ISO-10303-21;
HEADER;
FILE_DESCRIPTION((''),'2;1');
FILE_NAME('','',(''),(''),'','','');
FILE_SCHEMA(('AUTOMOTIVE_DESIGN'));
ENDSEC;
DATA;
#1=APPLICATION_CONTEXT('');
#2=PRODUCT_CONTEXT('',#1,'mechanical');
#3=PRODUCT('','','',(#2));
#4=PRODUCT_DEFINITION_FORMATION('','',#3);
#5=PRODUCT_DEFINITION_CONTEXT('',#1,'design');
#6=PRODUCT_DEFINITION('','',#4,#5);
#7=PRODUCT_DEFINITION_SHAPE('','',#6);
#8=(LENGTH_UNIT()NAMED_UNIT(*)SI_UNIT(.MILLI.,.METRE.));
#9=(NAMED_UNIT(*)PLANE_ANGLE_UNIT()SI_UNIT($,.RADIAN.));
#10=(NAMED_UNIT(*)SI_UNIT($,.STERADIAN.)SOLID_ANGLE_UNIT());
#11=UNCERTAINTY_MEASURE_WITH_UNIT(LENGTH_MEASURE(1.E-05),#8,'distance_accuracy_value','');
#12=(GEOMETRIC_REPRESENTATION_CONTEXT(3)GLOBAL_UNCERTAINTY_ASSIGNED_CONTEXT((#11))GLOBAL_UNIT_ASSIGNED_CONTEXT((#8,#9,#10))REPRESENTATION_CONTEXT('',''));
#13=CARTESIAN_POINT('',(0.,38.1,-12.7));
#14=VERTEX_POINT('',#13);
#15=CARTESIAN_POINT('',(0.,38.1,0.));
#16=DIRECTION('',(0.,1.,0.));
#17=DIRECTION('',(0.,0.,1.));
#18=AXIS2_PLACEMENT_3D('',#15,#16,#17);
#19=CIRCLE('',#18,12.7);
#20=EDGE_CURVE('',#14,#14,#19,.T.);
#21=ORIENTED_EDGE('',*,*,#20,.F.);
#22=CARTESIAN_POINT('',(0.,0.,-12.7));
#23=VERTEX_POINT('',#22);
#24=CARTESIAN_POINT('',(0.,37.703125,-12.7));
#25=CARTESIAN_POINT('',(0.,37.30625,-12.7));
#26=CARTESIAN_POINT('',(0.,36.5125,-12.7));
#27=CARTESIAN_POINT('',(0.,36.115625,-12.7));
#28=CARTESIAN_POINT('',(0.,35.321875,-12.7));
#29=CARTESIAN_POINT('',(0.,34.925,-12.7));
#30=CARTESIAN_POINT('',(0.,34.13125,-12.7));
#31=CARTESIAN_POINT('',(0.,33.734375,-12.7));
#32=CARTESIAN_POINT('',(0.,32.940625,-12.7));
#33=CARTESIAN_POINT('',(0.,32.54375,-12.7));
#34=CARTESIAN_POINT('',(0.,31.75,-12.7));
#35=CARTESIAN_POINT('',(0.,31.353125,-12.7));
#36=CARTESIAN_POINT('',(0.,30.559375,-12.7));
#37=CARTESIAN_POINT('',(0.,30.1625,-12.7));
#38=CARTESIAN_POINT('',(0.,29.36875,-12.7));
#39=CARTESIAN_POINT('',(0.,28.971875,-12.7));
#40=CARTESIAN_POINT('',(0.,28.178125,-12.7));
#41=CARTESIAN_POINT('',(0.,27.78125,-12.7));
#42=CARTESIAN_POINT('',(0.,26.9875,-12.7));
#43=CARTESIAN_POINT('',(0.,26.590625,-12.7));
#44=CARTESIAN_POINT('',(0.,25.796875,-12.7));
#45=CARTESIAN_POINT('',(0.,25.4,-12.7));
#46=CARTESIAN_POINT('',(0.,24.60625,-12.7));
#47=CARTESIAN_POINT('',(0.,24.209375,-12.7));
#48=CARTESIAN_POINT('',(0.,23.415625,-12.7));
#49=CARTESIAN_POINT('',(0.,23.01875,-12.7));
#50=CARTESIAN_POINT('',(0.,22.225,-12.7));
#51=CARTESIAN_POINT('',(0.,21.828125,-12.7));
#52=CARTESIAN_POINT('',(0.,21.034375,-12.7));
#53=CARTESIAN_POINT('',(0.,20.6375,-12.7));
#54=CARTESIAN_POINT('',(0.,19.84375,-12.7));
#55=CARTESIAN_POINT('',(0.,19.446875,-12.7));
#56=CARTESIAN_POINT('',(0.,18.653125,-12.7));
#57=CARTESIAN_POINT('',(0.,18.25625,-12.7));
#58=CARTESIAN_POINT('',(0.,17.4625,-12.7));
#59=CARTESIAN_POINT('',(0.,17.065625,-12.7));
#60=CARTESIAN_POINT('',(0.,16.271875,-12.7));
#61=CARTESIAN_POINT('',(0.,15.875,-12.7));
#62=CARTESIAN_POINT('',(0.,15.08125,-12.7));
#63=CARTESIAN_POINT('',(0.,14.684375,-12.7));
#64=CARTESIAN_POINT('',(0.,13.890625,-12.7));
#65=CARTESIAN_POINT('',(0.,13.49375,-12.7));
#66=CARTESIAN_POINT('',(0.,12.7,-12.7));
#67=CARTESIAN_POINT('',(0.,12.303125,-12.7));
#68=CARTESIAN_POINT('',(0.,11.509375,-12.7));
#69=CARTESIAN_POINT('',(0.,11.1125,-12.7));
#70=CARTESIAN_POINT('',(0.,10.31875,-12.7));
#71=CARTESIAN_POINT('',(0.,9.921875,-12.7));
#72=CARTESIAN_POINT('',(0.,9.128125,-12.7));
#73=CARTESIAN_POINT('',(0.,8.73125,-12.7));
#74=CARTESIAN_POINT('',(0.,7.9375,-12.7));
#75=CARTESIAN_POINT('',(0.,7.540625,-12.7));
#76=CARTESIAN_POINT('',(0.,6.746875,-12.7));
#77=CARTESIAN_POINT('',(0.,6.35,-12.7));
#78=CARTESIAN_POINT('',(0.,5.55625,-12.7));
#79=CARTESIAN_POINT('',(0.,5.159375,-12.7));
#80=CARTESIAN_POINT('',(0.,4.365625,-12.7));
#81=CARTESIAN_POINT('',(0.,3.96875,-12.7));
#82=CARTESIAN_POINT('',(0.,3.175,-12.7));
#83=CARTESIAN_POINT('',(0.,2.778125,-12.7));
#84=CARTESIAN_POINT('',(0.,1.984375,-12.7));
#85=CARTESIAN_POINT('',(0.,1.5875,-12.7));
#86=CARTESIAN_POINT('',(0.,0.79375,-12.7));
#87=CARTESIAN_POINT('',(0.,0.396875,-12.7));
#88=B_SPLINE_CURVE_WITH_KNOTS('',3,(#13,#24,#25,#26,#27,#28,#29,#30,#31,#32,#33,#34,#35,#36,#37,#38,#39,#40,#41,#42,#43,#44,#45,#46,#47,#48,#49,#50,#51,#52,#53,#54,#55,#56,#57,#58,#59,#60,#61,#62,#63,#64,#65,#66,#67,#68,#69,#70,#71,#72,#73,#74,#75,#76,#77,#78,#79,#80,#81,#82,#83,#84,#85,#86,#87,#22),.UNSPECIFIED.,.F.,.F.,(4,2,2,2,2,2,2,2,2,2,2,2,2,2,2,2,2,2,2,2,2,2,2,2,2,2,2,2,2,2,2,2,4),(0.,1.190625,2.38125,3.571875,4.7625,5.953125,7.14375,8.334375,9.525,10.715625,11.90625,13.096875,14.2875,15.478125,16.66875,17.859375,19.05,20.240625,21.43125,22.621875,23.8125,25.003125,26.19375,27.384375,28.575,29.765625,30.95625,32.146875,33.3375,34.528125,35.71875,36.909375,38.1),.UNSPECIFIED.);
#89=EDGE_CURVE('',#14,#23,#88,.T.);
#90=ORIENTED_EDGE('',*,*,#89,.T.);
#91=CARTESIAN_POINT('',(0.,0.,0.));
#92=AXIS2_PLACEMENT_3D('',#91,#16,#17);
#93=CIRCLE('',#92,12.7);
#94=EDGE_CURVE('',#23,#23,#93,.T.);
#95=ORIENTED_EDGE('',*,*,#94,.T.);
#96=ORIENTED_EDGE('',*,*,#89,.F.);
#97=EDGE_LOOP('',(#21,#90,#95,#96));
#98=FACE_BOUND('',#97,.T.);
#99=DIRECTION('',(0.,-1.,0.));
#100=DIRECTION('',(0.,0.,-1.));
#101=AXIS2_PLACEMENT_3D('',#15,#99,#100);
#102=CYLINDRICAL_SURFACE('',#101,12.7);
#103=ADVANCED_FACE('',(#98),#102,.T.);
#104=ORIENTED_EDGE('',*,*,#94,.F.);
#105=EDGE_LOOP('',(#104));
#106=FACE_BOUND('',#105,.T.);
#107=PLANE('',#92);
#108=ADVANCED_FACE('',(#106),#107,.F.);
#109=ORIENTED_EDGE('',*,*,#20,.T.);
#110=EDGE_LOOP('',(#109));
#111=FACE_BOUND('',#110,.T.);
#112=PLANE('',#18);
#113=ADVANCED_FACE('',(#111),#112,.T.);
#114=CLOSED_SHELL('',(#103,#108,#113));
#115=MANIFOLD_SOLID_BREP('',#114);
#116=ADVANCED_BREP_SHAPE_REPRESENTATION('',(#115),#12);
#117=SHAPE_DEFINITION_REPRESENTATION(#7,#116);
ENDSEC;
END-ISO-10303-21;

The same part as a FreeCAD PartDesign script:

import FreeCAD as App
import Part
import Sketcher
from FreeCAD import Vector
Q = App.Units.Quantity

doc = App.newDocument("Part")
params = doc.addObject("Spreadsheet::Sheet", "Params")
for row, (alias, value) in enumerate([
    ("sketch1_diameter", "1 in"),
    ("pad1_length", "1.5 in"),
], start=1):
    params.set(f"A{row}", alias)
    params.set(f"B{row}", "=" + value)
    params.setAlias(f"B{row}", alias)

body = doc.addObject("PartDesign::Body", "Body")

sketch1 = doc.addObject("Sketcher::SketchObject", "Sketch")
body.addObject(sketch1)
sketch1.AttachmentSupport = (doc.XZ_Plane, [""])
sketch1.MapMode = "FlatFace"
sketch1.addGeometry(Part.Circle(Vector(0, 0, 0), Vector(0, 0, 1), 13), False)
sketch1.addConstraint([
    Sketcher.Constraint("Coincident", 0, 3, -1, 1),
    Sketcher.Constraint("Diameter", 0, Q("1 in")),
])
sketch1.setExpression("Constraints[1]", "Params.sketch1_diameter")
pad1 = doc.addObject("PartDesign::Pad", "Pad")
body.addObject(pad1)
pad1.Profile = sketch1
pad1.setExpression("Length", "Params.pad1_length")
pad1.Reversed = True

doc.recompute()
